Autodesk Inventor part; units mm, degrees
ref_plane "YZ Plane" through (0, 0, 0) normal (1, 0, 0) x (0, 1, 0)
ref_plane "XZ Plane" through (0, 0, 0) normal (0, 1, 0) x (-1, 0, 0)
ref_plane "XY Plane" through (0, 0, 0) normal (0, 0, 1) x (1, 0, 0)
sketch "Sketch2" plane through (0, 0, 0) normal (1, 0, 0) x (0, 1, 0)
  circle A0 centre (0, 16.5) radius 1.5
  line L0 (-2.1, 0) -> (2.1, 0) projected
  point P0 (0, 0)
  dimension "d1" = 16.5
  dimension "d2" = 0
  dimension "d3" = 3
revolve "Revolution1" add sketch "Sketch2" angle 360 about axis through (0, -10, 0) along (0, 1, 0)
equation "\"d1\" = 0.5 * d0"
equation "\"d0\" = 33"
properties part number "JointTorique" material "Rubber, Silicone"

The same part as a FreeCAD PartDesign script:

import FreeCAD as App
import Part
import Sketcher
from FreeCAD import Vector

doc = App.newDocument("Part")
params = doc.addObject("Spreadsheet::Sheet", "Params")
for row, (alias, value) in enumerate([
    ("sketch1_diameter", "3 mm"),
    ("revolution_angle", "360 deg"),
], start=1):
    params.set(f"A{row}", alias)
    params.set(f"B{row}", "=" + value)
    params.setAlias(f"B{row}", alias)

body = doc.addObject("PartDesign::Body", "Body")

sketch1 = body.newObject("Sketcher::SketchObject", "Sketch")
sketch1.AttachmentSupport = (doc.getObject("YZ_Plane"), [""])
sketch1.MapMode = "FlatFace"
sketch1.addGeometry(Part.Circle(Vector(0, 16.5, 0), Vector(0, 0, 1), 1.5), False)
sketch1.addConstraint([
    Sketcher.Constraint("PointOnObject", 0, 3, -2),
    Sketcher.Constraint("Diameter", 0, 3.0),
    Sketcher.Constraint("DistanceY", -1, 1, 0, 3, 16.5),
])
sketch1.setExpression("Constraints[1]", "Params.sketch1_diameter")
revolution = body.newObject("PartDesign::Revolution", "Revolution")
revolution.Profile = sketch1
revolution.ReferenceAxis = (sketch1, ["H_Axis"])
revolution.setExpression("Angle", "Params.revolution_angle")

doc.recompute()
